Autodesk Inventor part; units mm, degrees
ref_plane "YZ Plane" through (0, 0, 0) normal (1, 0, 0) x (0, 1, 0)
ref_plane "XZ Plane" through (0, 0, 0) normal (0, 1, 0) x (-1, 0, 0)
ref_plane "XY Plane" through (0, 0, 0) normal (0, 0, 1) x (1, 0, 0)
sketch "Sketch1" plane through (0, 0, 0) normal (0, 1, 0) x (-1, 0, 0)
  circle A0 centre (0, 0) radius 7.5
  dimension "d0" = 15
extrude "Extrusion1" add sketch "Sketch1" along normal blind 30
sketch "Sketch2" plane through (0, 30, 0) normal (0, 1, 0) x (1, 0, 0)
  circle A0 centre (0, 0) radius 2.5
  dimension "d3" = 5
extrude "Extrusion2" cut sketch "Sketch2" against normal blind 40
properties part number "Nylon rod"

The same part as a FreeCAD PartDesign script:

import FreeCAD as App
import Part
import Sketcher

V = App.Vector

doc = App.newDocument("Part")
body = doc.addObject("PartDesign::Body", "Body")

sketch1 = doc.addObject("Sketcher::SketchObject", "Sketch")
body.addObject(sketch1)
sketch1.AttachmentSupport = (doc.XZ_Plane, [""])
sketch1.MapMode = "FlatFace"
sketch1.addGeometry(Part.Circle(V(0, 0, 0), V(0, 0, 1), 8), False)
sketch1.addConstraint([
    Sketcher.Constraint("Coincident", 0, 3, -1, 1),
    Sketcher.Constraint("Diameter", 0, 15.0),
])
pad1 = doc.addObject("PartDesign::Pad", "Pad")
body.addObject(pad1)
pad1.Profile = sketch1
pad1.Length = 30
pad1.Reversed = True

sketch2 = doc.addObject("Sketcher::SketchObject", "Sketch001")
body.addObject(sketch2)
sketch2.AttachmentSupport = (doc.XZ_Plane, [""])
sketch2.MapMode = "FlatFace"
sketch2.AttachmentOffset = App.Placement(V(0, 0, -30), App.Rotation())
sketch2.addGeometry(Part.Circle(V(0, 0, 0), V(0, 0, 1), 2.5), False)
sketch2.addConstraint([
    Sketcher.Constraint("Coincident", 0, 3, -1, 1),
    Sketcher.Constraint("Diameter", 0, 5.0),
])
pocket1 = doc.addObject("PartDesign::Pocket", "Pocket")
body.addObject(pocket1)
pocket1.Profile = sketch2
pocket1.Length = 40
pocket1.Reversed = True

doc.recompute()
